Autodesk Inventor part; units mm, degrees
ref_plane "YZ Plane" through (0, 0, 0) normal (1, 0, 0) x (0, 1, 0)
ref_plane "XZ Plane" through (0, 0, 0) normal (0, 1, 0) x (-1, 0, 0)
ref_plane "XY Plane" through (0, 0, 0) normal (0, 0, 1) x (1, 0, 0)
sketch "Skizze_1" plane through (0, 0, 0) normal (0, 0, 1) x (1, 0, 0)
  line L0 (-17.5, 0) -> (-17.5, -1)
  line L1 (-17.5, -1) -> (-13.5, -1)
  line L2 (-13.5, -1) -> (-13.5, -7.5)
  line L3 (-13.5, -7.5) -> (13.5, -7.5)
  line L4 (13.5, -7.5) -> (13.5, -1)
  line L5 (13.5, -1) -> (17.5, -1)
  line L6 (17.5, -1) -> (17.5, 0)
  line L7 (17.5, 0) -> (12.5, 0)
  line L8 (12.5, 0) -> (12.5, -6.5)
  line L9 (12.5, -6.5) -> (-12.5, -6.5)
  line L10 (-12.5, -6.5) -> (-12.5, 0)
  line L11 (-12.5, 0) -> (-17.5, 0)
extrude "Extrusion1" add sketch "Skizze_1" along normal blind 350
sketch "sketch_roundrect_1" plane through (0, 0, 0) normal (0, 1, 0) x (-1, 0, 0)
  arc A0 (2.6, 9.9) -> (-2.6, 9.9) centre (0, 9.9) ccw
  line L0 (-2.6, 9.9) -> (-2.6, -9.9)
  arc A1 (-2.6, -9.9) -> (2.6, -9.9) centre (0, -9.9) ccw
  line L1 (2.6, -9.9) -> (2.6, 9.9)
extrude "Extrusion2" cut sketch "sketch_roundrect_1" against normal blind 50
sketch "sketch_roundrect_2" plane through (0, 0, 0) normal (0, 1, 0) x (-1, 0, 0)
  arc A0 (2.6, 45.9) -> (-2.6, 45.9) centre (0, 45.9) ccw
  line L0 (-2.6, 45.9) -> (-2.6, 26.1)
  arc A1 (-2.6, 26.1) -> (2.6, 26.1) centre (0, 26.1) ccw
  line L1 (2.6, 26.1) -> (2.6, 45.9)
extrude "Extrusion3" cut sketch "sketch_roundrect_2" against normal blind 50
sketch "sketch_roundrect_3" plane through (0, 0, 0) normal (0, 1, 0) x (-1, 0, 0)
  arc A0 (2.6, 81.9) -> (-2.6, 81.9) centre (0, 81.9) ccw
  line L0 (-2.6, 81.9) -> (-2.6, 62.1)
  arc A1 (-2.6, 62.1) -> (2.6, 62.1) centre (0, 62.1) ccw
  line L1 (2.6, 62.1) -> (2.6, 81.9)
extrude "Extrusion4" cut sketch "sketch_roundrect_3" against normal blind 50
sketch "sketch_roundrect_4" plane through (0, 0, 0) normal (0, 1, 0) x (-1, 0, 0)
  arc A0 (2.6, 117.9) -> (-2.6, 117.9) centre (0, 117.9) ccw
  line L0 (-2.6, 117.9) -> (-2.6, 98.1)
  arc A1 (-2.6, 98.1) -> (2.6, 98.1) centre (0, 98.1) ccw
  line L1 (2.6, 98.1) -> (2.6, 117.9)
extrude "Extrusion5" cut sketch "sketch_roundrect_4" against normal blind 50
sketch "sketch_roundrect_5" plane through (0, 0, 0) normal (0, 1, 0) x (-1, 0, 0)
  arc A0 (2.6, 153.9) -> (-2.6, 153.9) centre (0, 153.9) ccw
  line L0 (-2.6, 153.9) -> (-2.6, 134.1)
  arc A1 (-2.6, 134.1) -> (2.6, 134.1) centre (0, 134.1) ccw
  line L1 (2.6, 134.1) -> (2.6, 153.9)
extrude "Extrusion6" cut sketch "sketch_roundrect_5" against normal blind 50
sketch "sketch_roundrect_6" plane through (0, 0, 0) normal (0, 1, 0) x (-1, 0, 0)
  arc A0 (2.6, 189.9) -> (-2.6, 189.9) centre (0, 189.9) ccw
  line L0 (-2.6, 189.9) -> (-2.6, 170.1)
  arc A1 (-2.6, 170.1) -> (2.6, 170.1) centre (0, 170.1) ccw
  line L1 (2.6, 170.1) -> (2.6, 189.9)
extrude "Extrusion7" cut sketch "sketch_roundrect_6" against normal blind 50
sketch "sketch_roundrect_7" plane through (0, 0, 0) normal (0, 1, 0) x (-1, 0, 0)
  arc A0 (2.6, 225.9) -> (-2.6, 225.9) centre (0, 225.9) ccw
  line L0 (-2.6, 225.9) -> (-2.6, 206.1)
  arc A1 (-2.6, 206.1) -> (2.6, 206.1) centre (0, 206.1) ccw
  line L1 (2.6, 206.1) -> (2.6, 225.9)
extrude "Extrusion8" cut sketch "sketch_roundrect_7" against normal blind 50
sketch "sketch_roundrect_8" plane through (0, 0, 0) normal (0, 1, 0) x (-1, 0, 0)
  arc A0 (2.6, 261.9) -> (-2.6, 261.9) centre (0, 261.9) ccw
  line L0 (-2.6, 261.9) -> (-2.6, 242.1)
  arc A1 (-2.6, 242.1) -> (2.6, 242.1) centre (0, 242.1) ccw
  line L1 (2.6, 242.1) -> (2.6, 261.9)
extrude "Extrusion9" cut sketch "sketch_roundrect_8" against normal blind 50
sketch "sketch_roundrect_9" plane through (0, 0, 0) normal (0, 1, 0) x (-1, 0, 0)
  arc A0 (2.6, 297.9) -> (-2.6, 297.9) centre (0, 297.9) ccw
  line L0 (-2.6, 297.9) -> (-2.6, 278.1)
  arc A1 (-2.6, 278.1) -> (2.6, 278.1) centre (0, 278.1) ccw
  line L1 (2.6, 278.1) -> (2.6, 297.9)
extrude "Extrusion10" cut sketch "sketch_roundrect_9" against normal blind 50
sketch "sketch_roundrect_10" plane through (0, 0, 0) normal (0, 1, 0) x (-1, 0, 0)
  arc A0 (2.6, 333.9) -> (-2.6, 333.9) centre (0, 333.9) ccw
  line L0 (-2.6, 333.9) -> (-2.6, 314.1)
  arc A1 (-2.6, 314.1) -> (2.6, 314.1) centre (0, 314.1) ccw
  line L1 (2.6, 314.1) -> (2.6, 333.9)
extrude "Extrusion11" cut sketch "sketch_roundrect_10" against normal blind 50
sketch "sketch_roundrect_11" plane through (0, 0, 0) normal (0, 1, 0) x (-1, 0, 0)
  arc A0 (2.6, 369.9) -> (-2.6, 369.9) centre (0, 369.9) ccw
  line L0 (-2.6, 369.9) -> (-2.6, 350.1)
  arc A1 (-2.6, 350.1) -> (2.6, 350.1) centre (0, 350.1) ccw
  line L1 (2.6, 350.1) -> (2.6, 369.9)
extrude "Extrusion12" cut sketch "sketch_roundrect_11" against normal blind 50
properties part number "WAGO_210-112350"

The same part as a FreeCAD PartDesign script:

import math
import FreeCAD as App
import Part
import Sketcher

V = App.Vector


def add_polygon(sketch, points):
    """Adds a closed chain of lines whose ends are joined by coincident constraints."""
    first, n = sketch.GeometryCount, len(points)
    for a, b in zip(points, points[1:] + points[:1]):
        sketch.addGeometry(Part.LineSegment(App.Vector(*a, 0), App.Vector(*b, 0)), False)
    for i in range(n):
        sketch.addConstraint(Sketcher.Constraint("Coincident", first + i, 2, first + (i + 1) % n, 1))

doc = App.newDocument("Part")
body = doc.addObject("PartDesign::Body", "Body")

# Sketch on XY plane
sketch1 = body.newObject("Sketcher::SketchObject", "Sketch")
sketch1.AttachmentSupport = (doc.getObject("XY_Plane"), [""])
sketch1.MapMode = "FlatFace"
add_polygon(sketch1, [(-12.5, 0), (-17.5, 0), (-17.5, -1), (-13.5, -1), (-13.5, -7.5), (13.5, -7.5), (13.5, -1), (17.5, -1), (17.5, 0), (12.5, 0), (12.5, -6.5), (-12.5, -6.5)])  # lines 0-11
sketch1.addConstraint(Sketcher.Constraint("Horizontal", 0))
sketch1.addConstraint(Sketcher.Constraint("Vertical", 1))
sketch1.addConstraint(Sketcher.Constraint("Horizontal", 2))
sketch1.addConstraint(Sketcher.Constraint("Vertical", 3))
sketch1.addConstraint(Sketcher.Constraint("Horizontal", 4))
sketch1.addConstraint(Sketcher.Constraint("Vertical", 5))
sketch1.addConstraint(Sketcher.Constraint("Horizontal", 6))
sketch1.addConstraint(Sketcher.Constraint("Vertical", 7))
sketch1.addConstraint(Sketcher.Constraint("Horizontal", 8))
sketch1.addConstraint(Sketcher.Constraint("Vertical", 9))
sketch1.addConstraint(Sketcher.Constraint("Horizontal", 10))
sketch1.addConstraint(Sketcher.Constraint("Vertical", 11))
sketch1.addConstraint(Sketcher.Constraint("Symmetric", 0, 2, 7, 2, -1, 1))
sketch1.addConstraint(Sketcher.Constraint("Symmetric", 2, 2, 5, 2, -2))
sketch1.addConstraint(Sketcher.Constraint("Symmetric", 8, 2, 11, 2, -2))
sketch1.addConstraint(Sketcher.Constraint("Equal", 5, 9))
sketch1.addConstraint(Sketcher.Constraint("DistanceX", 0, 2, 0, 1, 5.0))
sketch1.addConstraint(Sketcher.Constraint("DistanceX", 2, 1, 2, 2, 4.0))
sketch1.addConstraint(Sketcher.Constraint("DistanceX", 4, 1, 4, 2, 27.0))
sketch1.addConstraint(Sketcher.Constraint("DistanceY", 1, 2, 1, 1, 1.0))
sketch1.addConstraint(Sketcher.Constraint("DistanceY", 3, 2, 3, 1, 6.5))
pad1 = body.newObject("PartDesign::Pad", "Pad")
pad1.Profile = sketch1
pad1.Length = 350

# Sketch on XZ plane
sketch2 = body.newObject("Sketcher::SketchObject", "Sketch001")
sketch2.AttachmentSupport = (doc.getObject("XZ_Plane"), [""])
sketch2.MapMode = "FlatFace"
sketch2.addGeometry(Part.LineSegment(V(-2.6, -9.9, 0), V(-2.6, 9.9, 0)), False)
sketch2.addGeometry(Part.ArcOfCircle(Part.Circle(V(0, 9.9, 0), V(0, 0, 1), 2.6), math.radians(0), math.radians(180)), False)
sketch2.addGeometry(Part.LineSegment(V(2.6, 9.9, 0), V(2.6, -9.9, 0)), False)
sketch2.addGeometry(Part.ArcOfCircle(Part.Circle(V(0, -9.9, 0), V(0, 0, 1), 2.6), math.radians(180), math.radians(360)), False)
sketch2.addConstraint(Sketcher.Constraint("Tangent", 0, 2, 1, 2))
sketch2.addConstraint(Sketcher.Constraint("Tangent", 1, 1, 2, 1))
sketch2.addConstraint(Sketcher.Constraint("Tangent", 2, 2, 3, 2))
sketch2.addConstraint(Sketcher.Constraint("Tangent", 3, 1, 0, 1))
sketch2.addConstraint(Sketcher.Constraint("Vertical", 0))
sketch2.addConstraint(Sketcher.Constraint("Vertical", 2))
sketch2.addConstraint(Sketcher.Constraint("Symmetric", 1, 3, 3, 3, -1, 1))
sketch2.addConstraint(Sketcher.Constraint("Radius", 1, 2.6))
sketch2.addConstraint(Sketcher.Constraint("DistanceY", 0, 1, 0, 2, 19.8))
pocket1 = body.newObject("PartDesign::Pocket", "Pocket")
pocket1.Profile = sketch2
pocket1.Length = 50
pocket1.Reversed = True

# Sketch on XZ plane
sketch3 = body.newObject("Sketcher::SketchObject", "Sketch002")
sketch3.AttachmentSupport = (doc.getObject("XZ_Plane"), [""])
sketch3.MapMode = "FlatFace"
sketch3.addGeometry(Part.LineSegment(V(-2.6, 26.1, 0), V(-2.6, 45.9, 0)), False)
sketch3.addGeometry(Part.ArcOfCircle(Part.Circle(V(0, 45.9, 0), V(0, 0, 1), 2.6), math.radians(0), math.radians(180)), False)
sketch3.addGeometry(Part.LineSegment(V(2.6, 45.9, 0), V(2.6, 26.1, 0)), False)
sketch3.addGeometry(Part.ArcOfCircle(Part.Circle(V(0, 26.1, 0), V(0, 0, 1), 2.6), math.radians(180), math.radians(360)), False)
sketch3.addConstraint(Sketcher.Constraint("Tangent", 0, 2, 1, 2))
sketch3.addConstraint(Sketcher.Constraint("Tangent", 1, 1, 2, 1))
sketch3.addConstraint(Sketcher.Constraint("Tangent", 2, 2, 3, 2))
sketch3.addConstraint(Sketcher.Constraint("Tangent", 3, 1, 0, 1))
sketch3.addConstraint(Sketcher.Constraint("Vertical", 0))
sketch3.addConstraint(Sketcher.Constraint("Vertical", 2))
sketch3.addConstraint(Sketcher.Constraint("PointOnObject", 1, 3, -2))
sketch3.addConstraint(Sketcher.Constraint("Radius", 1, 2.6))
sketch3.addConstraint(Sketcher.Constraint("DistanceY", 0, 1, 0, 2, 19.8))
sketch3.addConstraint(Sketcher.Constraint("DistanceY", -1, 1, 1, 3, 45.9))
pocket2 = body.newObject("PartDesign::Pocket", "Pocket001")
pocket2.Profile = sketch3
pocket2.Length = 50
pocket2.Reversed = True

# Sketch on XZ plane
sketch4 = body.newObject("Sketcher::SketchObject", "Sketch003")
sketch4.AttachmentSupport = (doc.getObject("XZ_Plane"), [""])
sketch4.MapMode = "FlatFace"
sketch4.addGeometry(Part.LineSegment(V(-2.6, 62.1, 0), V(-2.6, 81.9, 0)), False)
sketch4.addGeometry(Part.ArcOfCircle(Part.Circle(V(0, 81.9, 0), V(0, 0, 1), 2.6), math.radians(0), math.radians(180)), False)
sketch4.addGeometry(Part.LineSegment(V(2.6, 81.9, 0), V(2.6, 62.1, 0)), False)
sketch4.addGeometry(Part.ArcOfCircle(Part.Circle(V(0, 62.1, 0), V(0, 0, 1), 2.6), math.radians(180), math.radians(360)), False)
sketch4.addConstraint(Sketcher.Constraint("Tangent", 0, 2, 1, 2))
sketch4.addConstraint(Sketcher.Constraint("Tangent", 1, 1, 2, 1))
sketch4.addConstraint(Sketcher.Constraint("Tangent", 2, 2, 3, 2))
sketch4.addConstraint(Sketcher.Constraint("Tangent", 3, 1, 0, 1))
sketch4.addConstraint(Sketcher.Constraint("Vertical", 0))
sketch4.addConstraint(Sketcher.Constraint("Vertical", 2))
sketch4.addConstraint(Sketcher.Constraint("PointOnObject", 1, 3, -2))
sketch4.addConstraint(Sketcher.Constraint("Radius", 1, 2.6))
sketch4.addConstraint(Sketcher.Constraint("DistanceY", 0, 1, 0, 2, 19.8))
sketch4.addConstraint(Sketcher.Constraint("DistanceY", -1, 1, 1, 3, 81.9))
pocket3 = body.newObject("PartDesign::Pocket", "Pocket002")
pocket3.Profile = sketch4
pocket3.Length = 50
pocket3.Reversed = True

# Sketch on XZ plane
sketch5 = body.newObject("Sketcher::SketchObject", "Sketch004")
sketch5.AttachmentSupport = (doc.getObject("XZ_Plane"), [""])
sketch5.MapMode = "FlatFace"
sketch5.addGeometry(Part.LineSegment(V(-2.6, 98.1, 0), V(-2.6, 117.9, 0)), False)
sketch5.addGeometry(Part.ArcOfCircle(Part.Circle(V(0, 117.9, 0), V(0, 0, 1), 2.6), math.radians(0), math.radians(180)), False)
sketch5.addGeometry(Part.LineSegment(V(2.6, 117.9, 0), V(2.6, 98.1, 0)), False)
sketch5.addGeometry(Part.ArcOfCircle(Part.Circle(V(0, 98.1, 0), V(0, 0, 1), 2.6), math.radians(180), math.radians(360)), False)
sketch5.addConstraint(Sketcher.Constraint("Tangent", 0, 2, 1, 2))
sketch5.addConstraint(Sketcher.Constraint("Tangent", 1, 1, 2, 1))
sketch5.addConstraint(Sketcher.Constraint("Tangent", 2, 2, 3, 2))
sketch5.addConstraint(Sketcher.Constraint("Tangent", 3, 1, 0, 1))
sketch5.addConstraint(Sketcher.Constraint("Vertical", 0))
sketch5.addConstraint(Sketcher.Constraint("Vertical", 2))
sketch5.addConstraint(Sketcher.Constraint("PointOnObject", 1, 3, -2))
sketch5.addConstraint(Sketcher.Constraint("Radius", 1, 2.6))
sketch5.addConstraint(Sketcher.Constraint("DistanceY", 0, 1, 0, 2, 19.8))
sketch5.addConstraint(Sketcher.Constraint("DistanceY", -1, 1, 1, 3, 117.9))
pocket4 = body.newObject("PartDesign::Pocket", "Pocket003")
pocket4.Profile = sketch5
pocket4.Length = 50
pocket4.Reversed = True

# Sketch on XZ plane
sketch6 = body.newObject("Sketcher::SketchObject", "Sketch005")
sketch6.AttachmentSupport = (doc.getObject("XZ_Plane"), [""])
sketch6.MapMode = "FlatFace"
sketch6.addGeometry(Part.LineSegment(V(-2.6, 134.1, 0), V(-2.6, 153.9, 0)), False)
sketch6.addGeometry(Part.ArcOfCircle(Part.Circle(V(0, 153.9, 0), V(0, 0, 1), 2.6), math.radians(0), math.radians(180)), False)
sketch6.addGeometry(Part.LineSegment(V(2.6, 153.9, 0), V(2.6, 134.1, 0)), False)
sketch6.addGeometry(Part.ArcOfCircle(Part.Circle(V(0, 134.1, 0), V(0, 0, 1), 2.6), math.radians(180), math.radians(360)), False)
sketch6.addConstraint(Sketcher.Constraint("Tangent", 0, 2, 1, 2))
sketch6.addConstraint(Sketcher.Constraint("Tangent", 1, 1, 2, 1))
sketch6.addConstraint(Sketcher.Constraint("Tangent", 2, 2, 3, 2))
sketch6.addConstraint(Sketcher.Constraint("Tangent", 3, 1, 0, 1))
sketch6.addConstraint(Sketcher.Constraint("Vertical", 0))
sketch6.addConstraint(Sketcher.Constraint("Vertical", 2))
sketch6.addConstraint(Sketcher.Constraint("PointOnObject", 1, 3, -2))
sketch6.addConstraint(Sketcher.Constraint("Radius", 1, 2.6))
sketch6.addConstraint(Sketcher.Constraint("DistanceY", 0, 1, 0, 2, 19.8))
sketch6.addConstraint(Sketcher.Constraint("DistanceY", -1, 1, 1, 3, 153.9))
pocket5 = body.newObject("PartDesign::Pocket", "Pocket004")
pocket5.Profile = sketch6
pocket5.Length = 50
pocket5.Reversed = True

# Sketch on XZ plane
sketch7 = body.newObject("Sketcher::SketchObject", "Sketch006")
sketch7.AttachmentSupport = (doc.getObject("XZ_Plane"), [""])
sketch7.MapMode = "FlatFace"
sketch7.addGeometry(Part.LineSegment(V(-2.6, 170.1, 0), V(-2.6, 189.9, 0)), False)
sketch7.addGeometry(Part.ArcOfCircle(Part.Circle(V(0, 189.9, 0), V(0, 0, 1), 2.6), math.radians(0), math.radians(180)), False)
sketch7.addGeometry(Part.LineSegment(V(2.6, 189.9, 0), V(2.6, 170.1, 0)), False)
sketch7.addGeometry(Part.ArcOfCircle(Part.Circle(V(0, 170.1, 0), V(0, 0, 1), 2.6), math.radians(180), math.radians(360)), False)
sketch7.addConstraint(Sketcher.Constraint("Tangent", 0, 2, 1, 2))
sketch7.addConstraint(Sketcher.Constraint("Tangent", 1, 1, 2, 1))
sketch7.addConstraint(Sketcher.Constraint("Tangent", 2, 2, 3, 2))
sketch7.addConstraint(Sketcher.Constraint("Tangent", 3, 1, 0, 1))
sketch7.addConstraint(Sketcher.Constraint("Vertical", 0))
sketch7.addConstraint(Sketcher.Constraint("Vertical", 2))
sketch7.addConstraint(Sketcher.Constraint("PointOnObject", 1, 3, -2))
sketch7.addConstraint(Sketcher.Constraint("Radius", 1, 2.6))
sketch7.addConstraint(Sketcher.Constraint("DistanceY", 0, 1, 0, 2, 19.8))
sketch7.addConstraint(Sketcher.Constraint("DistanceY", -1, 1, 1, 3, 189.9))
pocket6 = body.newObject("PartDesign::Pocket", "Pocket005")
pocket6.Profile = sketch7
pocket6.Length = 50
pocket6.Reversed = True

# Sketch on XZ plane
sketch8 = body.newObject("Sketcher::SketchObject", "Sketch007")
sketch8.AttachmentSupport = (doc.getObject("XZ_Plane"), [""])
sketch8.MapMode = "FlatFace"
sketch8.addGeometry(Part.LineSegment(V(-2.6, 206.1, 0), V(-2.6, 225.9, 0)), False)
sketch8.addGeometry(Part.ArcOfCircle(Part.Circle(V(0, 225.9, 0), V(0, 0, 1), 2.6), math.radians(0), math.radians(180)), False)
sketch8.addGeometry(Part.LineSegment(V(2.6, 225.9, 0), V(2.6, 206.1, 0)), False)
sketch8.addGeometry(Part.ArcOfCircle(Part.Circle(V(0, 206.1, 0), V(0, 0, 1), 2.6), math.radians(180), math.radians(360)), False)
sketch8.addConstraint(Sketcher.Constraint("Tangent", 0, 2, 1, 2))
sketch8.addConstraint(Sketcher.Constraint("Tangent", 1, 1, 2, 1))
sketch8.addConstraint(Sketcher.Constraint("Tangent", 2, 2, 3, 2))
sketch8.addConstraint(Sketcher.Constraint("Tangent", 3, 1, 0, 1))
sketch8.addConstraint(Sketcher.Constraint("Vertical", 0))
sketch8.addConstraint(Sketcher.Constraint("Vertical", 2))
sketch8.addConstraint(Sketcher.Constraint("PointOnObject", 1, 3, -2))
sketch8.addConstraint(Sketcher.Constraint("Radius", 1, 2.6))
sketch8.addConstraint(Sketcher.Constraint("DistanceY", 0, 1, 0, 2, 19.8))
sketch8.addConstraint(Sketcher.Constraint("DistanceY", -1, 1, 1, 3, 225.9))
pocket7 = body.newObject("PartDesign::Pocket", "Pocket006")
pocket7.Profile = sketch8
pocket7.Length = 50
pocket7.Reversed = True

# Sketch on XZ plane
sketch9 = body.newObject("Sketcher::SketchObject", "Sketch008")
sketch9.AttachmentSupport = (doc.getObject("XZ_Plane"), [""])
sketch9.MapMode = "FlatFace"
sketch9.addGeometry(Part.LineSegment(V(-2.6, 242.1, 0), V(-2.6, 261.9, 0)), False)
sketch9.addGeometry(Part.ArcOfCircle(Part.Circle(V(0, 261.9, 0), V(0, 0, 1), 2.6), math.radians(0), math.radians(180)), False)
sketch9.addGeometry(Part.LineSegment(V(2.6, 261.9, 0), V(2.6, 242.1, 0)), False)
sketch9.addGeometry(Part.ArcOfCircle(Part.Circle(V(0, 242.1, 0), V(0, 0, 1), 2.6), math.radians(180), math.radians(360)), False)
sketch9.addConstraint(Sketcher.Constraint("Tangent", 0, 2, 1, 2))
sketch9.addConstraint(Sketcher.Constraint("Tangent", 1, 1, 2, 1))
sketch9.addConstraint(Sketcher.Constraint("Tangent", 2, 2, 3, 2))
sketch9.addConstraint(Sketcher.Constraint("Tangent", 3, 1, 0, 1))
sketch9.addConstraint(Sketcher.Constraint("Vertical", 0))
sketch9.addConstraint(Sketcher.Constraint("Vertical", 2))
sketch9.addConstraint(Sketcher.Constraint("PointOnObject", 1, 3, -2))
sketch9.addConstraint(Sketcher.Constraint("Radius", 1, 2.6))
sketch9.addConstraint(Sketcher.Constraint("DistanceY", 0, 1, 0, 2, 19.8))
sketch9.addConstraint(Sketcher.Constraint("DistanceY", -1, 1, 1, 3, 261.9))
pocket8 = body.newObject("PartDesign::Pocket", "Pocket007")
pocket8.Profile = sketch9
pocket8.Length = 50
pocket8.Reversed = True

# Sketch on XZ plane
sketch10 = body.newObject("Sketcher::SketchObject", "Sketch009")
sketch10.AttachmentSupport = (doc.getObject("XZ_Plane"), [""])
sketch10.MapMode = "FlatFace"
sketch10.addGeometry(Part.LineSegment(V(-2.6, 278.1, 0), V(-2.6, 297.9, 0)), False)
sketch10.addGeometry(Part.ArcOfCircle(Part.Circle(V(0, 297.9, 0), V(0, 0, 1), 2.6), math.radians(0), math.radians(180)), False)
sketch10.addGeometry(Part.LineSegment(V(2.6, 297.9, 0), V(2.6, 278.1, 0)), False)
sketch10.addGeometry(Part.ArcOfCircle(Part.Circle(V(0, 278.1, 0), V(0, 0, 1), 2.6), math.radians(180), math.radians(360)), False)
sketch10.addConstraint(Sketcher.Constraint("Tangent", 0, 2, 1, 2))
sketch10.addConstraint(Sketcher.Constraint("Tangent", 1, 1, 2, 1))
sketch10.addConstraint(Sketcher.Constraint("Tangent", 2, 2, 3, 2))
sketch10.addConstraint(Sketcher.Constraint("Tangent", 3, 1, 0, 1))
sketch10.addConstraint(Sketcher.Constraint("Vertical", 0))
sketch10.addConstraint(Sketcher.Constraint("Vertical", 2))
sketch10.addConstraint(Sketcher.Constraint("PointOnObject", 1, 3, -2))
sketch10.addConstraint(Sketcher.Constraint("Radius", 1, 2.6))
sketch10.addConstraint(Sketcher.Constraint("DistanceY", 0, 1, 0, 2, 19.8))
sketch10.addConstraint(Sketcher.Constraint("DistanceY", -1, 1, 1, 3, 297.9))
pocket9 = body.newObject("PartDesign::Pocket", "Pocket008")
pocket9.Profile = sketch10
pocket9.Length = 50
pocket9.Reversed = True

# Sketch on XZ plane
sketch11 = body.newObject("Sketcher::SketchObject", "Sketch010")
sketch11.AttachmentSupport = (doc.getObject("XZ_Plane"), [""])
sketch11.MapMode = "FlatFace"
sketch11.addGeometry(Part.LineSegment(V(-2.6, 314.1, 0), V(-2.6, 333.9, 0)), False)
sketch11.addGeometry(Part.ArcOfCircle(Part.Circle(V(0, 333.9, 0), V(0, 0, 1), 2.6), math.radians(0), math.radians(180)), False)
sketch11.addGeometry(Part.LineSegment(V(2.6, 333.9, 0), V(2.6, 314.1, 0)), False)
sketch11.addGeometry(Part.ArcOfCircle(Part.Circle(V(0, 314.1, 0), V(0, 0, 1), 2.6), math.radians(180), math.radians(360)), False)
sketch11.addConstraint(Sketcher.Constraint("Tangent", 0, 2, 1, 2))
sketch11.addConstraint(Sketcher.Constraint("Tangent", 1, 1, 2, 1))
sketch11.addConstraint(Sketcher.Constraint("Tangent", 2, 2, 3, 2))
sketch11.addConstraint(Sketcher.Constraint("Tangent", 3, 1, 0, 1))
sketch11.addConstraint(Sketcher.Constraint("Vertical", 0))
sketch11.addConstraint(Sketcher.Constraint("Vertical", 2))
sketch11.addConstraint(Sketcher.Constraint("PointOnObject", 1, 3, -2))
sketch11.addConstraint(Sketcher.Constraint("Radius", 1, 2.6))
sketch11.addConstraint(Sketcher.Constraint("DistanceY", 0, 1, 0, 2, 19.8))
sketch11.addConstraint(Sketcher.Constraint("DistanceY", -1, 1, 1, 3, 333.9))
pocket10 = body.newObject("PartDesign::Pocket", "Pocket009")
pocket10.Profile = sketch11
pocket10.Length = 50
pocket10.Reversed = True

# Sketch on XZ plane
sketch12 = body.newObject("Sketcher::SketchObject", "Sketch011")
sketch12.AttachmentSupport = (doc.getObject("XZ_Plane"), [""])
sketch12.MapMode = "FlatFace"
sketch12.addGeometry(Part.LineSegment(V(-2.6, 350.1, 0), V(-2.6, 369.9, 0)), False)
sketch12.addGeometry(Part.ArcOfCircle(Part.Circle(V(0, 369.9, 0), V(0, 0, 1), 2.6), math.radians(0), math.radians(180)), False)
sketch12.addGeometry(Part.LineSegment(V(2.6, 369.9, 0), V(2.6, 350.1, 0)), False)
sketch12.addGeometry(Part.ArcOfCircle(Part.Circle(V(0, 350.1, 0), V(0, 0, 1), 2.6), math.radians(180), math.radians(360)), False)
sketch12.addConstraint(Sketcher.Constraint("Tangent", 0, 2, 1, 2))
sketch12.addConstraint(Sketcher.Constraint("Tangent", 1, 1, 2, 1))
sketch12.addConstraint(Sketcher.Constraint("Tangent", 2, 2, 3, 2))
sketch12.addConstraint(Sketcher.Constraint("Tangent", 3, 1, 0, 1))
sketch12.addConstraint(Sketcher.Constraint("Vertical", 0))
sketch12.addConstraint(Sketcher.Constraint("Vertical", 2))
sketch12.addConstraint(Sketcher.Constraint("PointOnObject", 1, 3, -2))
sketch12.addConstraint(Sketcher.Constraint("Radius", 1, 2.6))
sketch12.addConstraint(Sketcher.Constraint("DistanceY", 0, 1, 0, 2, 19.8))
sketch12.addConstraint(Sketcher.Constraint("DistanceY", -1, 1, 1, 3, 369.9))
pocket11 = body.newObject("PartDesign::Pocket", "Pocket010")
pocket11.Profile = sketch12
pocket11.Length = 50
pocket11.Reversed = True

doc.recompute()
